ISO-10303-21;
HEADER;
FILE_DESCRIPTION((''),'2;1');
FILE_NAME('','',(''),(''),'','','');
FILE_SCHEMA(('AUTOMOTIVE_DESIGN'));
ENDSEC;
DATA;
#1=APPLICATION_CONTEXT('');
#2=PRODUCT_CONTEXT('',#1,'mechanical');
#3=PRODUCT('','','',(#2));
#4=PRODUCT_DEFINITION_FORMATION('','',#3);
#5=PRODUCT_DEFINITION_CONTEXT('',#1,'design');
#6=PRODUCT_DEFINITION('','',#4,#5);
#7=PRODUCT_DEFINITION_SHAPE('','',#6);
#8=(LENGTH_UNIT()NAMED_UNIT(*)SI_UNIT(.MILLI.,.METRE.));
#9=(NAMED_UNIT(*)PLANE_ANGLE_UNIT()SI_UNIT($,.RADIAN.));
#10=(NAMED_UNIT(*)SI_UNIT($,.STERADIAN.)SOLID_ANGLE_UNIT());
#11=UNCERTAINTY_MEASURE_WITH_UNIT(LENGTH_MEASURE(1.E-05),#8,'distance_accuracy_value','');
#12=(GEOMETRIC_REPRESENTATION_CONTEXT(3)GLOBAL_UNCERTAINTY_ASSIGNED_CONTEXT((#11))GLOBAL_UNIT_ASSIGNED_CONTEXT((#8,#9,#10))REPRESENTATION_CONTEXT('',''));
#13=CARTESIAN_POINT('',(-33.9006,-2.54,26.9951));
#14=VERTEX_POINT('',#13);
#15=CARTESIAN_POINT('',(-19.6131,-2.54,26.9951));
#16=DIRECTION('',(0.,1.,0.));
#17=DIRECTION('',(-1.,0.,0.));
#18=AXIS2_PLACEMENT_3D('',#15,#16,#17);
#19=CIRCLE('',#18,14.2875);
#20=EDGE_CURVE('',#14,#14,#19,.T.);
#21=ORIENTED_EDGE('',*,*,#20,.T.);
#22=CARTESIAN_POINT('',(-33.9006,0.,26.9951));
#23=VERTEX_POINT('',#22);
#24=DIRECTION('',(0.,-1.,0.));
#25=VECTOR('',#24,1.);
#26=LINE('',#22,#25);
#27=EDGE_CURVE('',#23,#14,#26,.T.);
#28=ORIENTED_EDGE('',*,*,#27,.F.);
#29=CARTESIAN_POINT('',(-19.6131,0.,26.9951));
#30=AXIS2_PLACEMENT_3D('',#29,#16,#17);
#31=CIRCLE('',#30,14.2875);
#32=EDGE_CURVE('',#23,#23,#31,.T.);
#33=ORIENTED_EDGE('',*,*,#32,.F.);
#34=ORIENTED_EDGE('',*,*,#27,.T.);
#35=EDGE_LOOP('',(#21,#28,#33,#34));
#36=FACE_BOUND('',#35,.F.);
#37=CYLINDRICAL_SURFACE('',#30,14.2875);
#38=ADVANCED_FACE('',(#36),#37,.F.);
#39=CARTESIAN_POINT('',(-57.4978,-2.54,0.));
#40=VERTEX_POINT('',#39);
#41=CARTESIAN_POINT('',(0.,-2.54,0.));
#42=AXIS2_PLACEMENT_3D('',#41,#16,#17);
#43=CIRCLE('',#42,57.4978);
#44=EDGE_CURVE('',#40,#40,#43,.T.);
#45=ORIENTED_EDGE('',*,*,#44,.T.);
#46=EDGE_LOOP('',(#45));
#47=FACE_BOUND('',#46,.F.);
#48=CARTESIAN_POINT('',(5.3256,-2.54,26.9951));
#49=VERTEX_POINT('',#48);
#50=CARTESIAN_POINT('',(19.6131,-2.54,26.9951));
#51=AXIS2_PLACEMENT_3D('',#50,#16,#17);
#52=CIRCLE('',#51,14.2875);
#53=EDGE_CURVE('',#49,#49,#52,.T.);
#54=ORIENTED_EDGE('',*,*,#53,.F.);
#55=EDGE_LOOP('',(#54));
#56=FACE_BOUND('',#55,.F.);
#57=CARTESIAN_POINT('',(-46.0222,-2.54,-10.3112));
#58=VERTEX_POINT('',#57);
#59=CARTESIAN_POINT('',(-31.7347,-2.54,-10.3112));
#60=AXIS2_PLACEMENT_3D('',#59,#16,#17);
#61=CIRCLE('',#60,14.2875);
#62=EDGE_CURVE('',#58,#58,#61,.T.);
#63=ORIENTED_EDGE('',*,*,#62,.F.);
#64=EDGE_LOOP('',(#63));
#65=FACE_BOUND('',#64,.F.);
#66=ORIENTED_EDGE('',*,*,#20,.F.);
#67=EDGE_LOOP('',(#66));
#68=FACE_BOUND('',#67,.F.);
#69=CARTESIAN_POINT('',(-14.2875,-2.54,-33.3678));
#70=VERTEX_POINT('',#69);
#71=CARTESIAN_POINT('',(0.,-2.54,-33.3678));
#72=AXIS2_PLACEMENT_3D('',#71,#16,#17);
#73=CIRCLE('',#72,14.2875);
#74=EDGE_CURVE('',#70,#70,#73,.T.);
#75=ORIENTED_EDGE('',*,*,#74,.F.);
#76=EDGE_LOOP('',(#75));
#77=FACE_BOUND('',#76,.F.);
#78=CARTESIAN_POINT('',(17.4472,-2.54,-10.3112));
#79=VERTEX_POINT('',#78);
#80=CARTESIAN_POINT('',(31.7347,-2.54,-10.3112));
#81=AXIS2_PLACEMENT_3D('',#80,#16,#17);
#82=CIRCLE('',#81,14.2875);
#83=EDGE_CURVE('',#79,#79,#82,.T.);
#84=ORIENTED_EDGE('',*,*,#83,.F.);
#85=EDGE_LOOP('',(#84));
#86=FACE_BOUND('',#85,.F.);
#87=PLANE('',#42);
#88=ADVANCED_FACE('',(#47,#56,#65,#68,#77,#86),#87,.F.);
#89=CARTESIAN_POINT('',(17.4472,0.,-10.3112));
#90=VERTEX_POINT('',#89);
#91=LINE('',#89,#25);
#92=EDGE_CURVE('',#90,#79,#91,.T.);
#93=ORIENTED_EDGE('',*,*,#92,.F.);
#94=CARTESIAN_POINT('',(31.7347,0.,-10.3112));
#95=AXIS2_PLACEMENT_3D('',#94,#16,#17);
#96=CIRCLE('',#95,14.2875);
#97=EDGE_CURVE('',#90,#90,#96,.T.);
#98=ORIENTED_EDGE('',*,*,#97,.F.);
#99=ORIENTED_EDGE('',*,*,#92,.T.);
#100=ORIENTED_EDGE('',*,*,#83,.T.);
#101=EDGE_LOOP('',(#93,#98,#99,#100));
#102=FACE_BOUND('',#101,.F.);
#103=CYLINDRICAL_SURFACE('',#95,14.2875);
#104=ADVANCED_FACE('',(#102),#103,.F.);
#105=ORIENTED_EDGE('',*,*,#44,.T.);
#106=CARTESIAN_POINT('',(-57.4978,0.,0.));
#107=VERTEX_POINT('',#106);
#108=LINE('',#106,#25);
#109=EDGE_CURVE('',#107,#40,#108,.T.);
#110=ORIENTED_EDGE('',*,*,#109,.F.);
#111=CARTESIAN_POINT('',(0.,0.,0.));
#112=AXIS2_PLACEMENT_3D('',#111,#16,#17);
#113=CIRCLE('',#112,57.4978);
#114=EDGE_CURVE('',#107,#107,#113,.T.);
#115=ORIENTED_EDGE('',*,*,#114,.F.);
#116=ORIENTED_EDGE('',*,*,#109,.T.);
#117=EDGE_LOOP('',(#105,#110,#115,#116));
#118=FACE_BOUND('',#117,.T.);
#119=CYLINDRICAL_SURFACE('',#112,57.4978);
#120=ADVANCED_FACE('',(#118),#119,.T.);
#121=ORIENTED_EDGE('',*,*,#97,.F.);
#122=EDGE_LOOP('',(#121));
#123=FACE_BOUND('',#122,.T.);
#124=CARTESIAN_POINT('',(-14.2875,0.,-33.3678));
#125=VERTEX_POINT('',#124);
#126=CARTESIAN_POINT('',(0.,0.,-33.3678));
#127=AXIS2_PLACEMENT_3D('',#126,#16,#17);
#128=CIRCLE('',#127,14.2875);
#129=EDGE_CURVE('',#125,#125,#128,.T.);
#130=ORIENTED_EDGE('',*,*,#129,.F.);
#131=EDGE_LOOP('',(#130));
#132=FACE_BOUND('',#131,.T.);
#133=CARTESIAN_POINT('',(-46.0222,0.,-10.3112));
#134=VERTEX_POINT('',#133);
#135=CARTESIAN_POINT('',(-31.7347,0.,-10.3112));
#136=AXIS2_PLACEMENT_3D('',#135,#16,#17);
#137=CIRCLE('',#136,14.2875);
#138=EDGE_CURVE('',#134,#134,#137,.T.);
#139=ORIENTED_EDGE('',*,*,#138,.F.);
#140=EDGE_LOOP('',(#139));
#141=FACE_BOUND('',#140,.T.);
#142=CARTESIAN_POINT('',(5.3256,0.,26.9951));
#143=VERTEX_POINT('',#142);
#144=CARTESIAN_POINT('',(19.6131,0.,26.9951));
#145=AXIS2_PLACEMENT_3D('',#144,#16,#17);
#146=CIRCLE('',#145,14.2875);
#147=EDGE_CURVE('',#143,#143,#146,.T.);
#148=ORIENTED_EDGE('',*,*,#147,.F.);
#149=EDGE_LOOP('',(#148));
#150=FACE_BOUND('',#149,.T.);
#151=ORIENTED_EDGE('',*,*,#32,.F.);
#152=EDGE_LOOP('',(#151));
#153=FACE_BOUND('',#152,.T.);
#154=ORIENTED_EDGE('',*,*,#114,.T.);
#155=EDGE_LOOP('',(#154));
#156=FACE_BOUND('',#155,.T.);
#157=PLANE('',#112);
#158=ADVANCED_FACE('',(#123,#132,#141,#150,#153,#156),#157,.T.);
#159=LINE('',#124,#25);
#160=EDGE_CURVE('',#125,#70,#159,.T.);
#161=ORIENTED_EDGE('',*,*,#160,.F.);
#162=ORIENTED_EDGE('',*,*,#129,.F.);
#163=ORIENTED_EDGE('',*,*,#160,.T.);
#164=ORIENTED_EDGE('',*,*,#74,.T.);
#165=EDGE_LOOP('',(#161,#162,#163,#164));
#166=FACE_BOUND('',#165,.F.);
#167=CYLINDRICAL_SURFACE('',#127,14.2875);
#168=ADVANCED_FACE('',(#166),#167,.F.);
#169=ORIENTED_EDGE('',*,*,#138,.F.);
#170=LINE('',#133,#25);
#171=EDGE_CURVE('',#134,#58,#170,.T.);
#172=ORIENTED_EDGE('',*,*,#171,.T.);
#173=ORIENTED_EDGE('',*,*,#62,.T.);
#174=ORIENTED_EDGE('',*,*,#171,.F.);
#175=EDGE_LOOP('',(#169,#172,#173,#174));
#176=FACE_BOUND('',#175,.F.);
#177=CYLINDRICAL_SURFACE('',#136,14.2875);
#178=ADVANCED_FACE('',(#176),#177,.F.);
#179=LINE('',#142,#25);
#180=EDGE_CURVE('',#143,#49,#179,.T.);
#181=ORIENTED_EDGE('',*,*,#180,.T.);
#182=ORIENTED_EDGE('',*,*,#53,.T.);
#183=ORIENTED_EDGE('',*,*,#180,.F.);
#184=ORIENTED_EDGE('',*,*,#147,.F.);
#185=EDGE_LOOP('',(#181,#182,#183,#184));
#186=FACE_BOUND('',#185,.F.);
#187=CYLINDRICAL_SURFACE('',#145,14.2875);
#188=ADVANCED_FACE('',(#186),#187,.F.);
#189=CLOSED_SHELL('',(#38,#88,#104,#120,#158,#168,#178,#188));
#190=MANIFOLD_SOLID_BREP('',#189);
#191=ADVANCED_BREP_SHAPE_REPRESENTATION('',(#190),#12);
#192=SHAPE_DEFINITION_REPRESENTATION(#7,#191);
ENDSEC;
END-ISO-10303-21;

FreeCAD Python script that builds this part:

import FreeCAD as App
import Part
import Sketcher
Q = App.Units.Quantity

doc = App.newDocument("Part")
params = doc.addObject("Spreadsheet::Sheet", "Params")
for row, (alias, value) in enumerate([
    ("sketch1_diameter", "1.125 in"),
    ("pad1_length", "0.1 in"),
], start=1):
    params.set(f"A{row}", alias)
    params.set(f"B{row}", "=" + value)
    params.setAlias(f"B{row}", alias)

body = doc.addObject("PartDesign::Body", "Body")

# Sketch on XZ plane
sketch1 = body.newObject("Sketcher::SketchObject", "Sketch")
sketch1.AttachmentSupport = (doc.getObject("XZ_Plane"), [""])
sketch1.MapMode = "FlatFace"
sketch1.addGeometry(Part.Circle(App.Vector(0, 0, 0), App.Vector(0, 0, 1), 57), False)
sketch1.addGeometry(Part.Circle(App.Vector(32, -10, 0), App.Vector(0, 0, 1), 14), False)
sketch1.addGeometry(Part.Circle(App.Vector(0, -33, 0), App.Vector(0, 0, 1), 14), False)
sketch1.addGeometry(Part.Circle(App.Vector(-32, -10, 0), App.Vector(0, 0, 1), 14), False)
sketch1.addGeometry(Part.Circle(App.Vector(20, 27, 0), App.Vector(0, 0, 1), 14), False)
sketch1.addGeometry(Part.Circle(App.Vector(-20, 27, 0), App.Vector(0, 0, 1), 14), False)
sketch1.addConstraint(Sketcher.Constraint("Coincident", 0, 3, -1, 1))
sketch1.addConstraint(Sketcher.Constraint("Equal", 1, 2))
sketch1.addConstraint(Sketcher.Constraint("Equal", 2, 3))
sketch1.addConstraint(Sketcher.Constraint("Equal", 3, 4))
sketch1.addConstraint(Sketcher.Constraint("Equal", 4, 5))
sketch1.addConstraint(Sketcher.Constraint("Symmetric", 1, 3, 3, 3, -2))
sketch1.addConstraint(Sketcher.Constraint("Symmetric", 4, 3, 5, 3, -2))
sketch1.addConstraint(Sketcher.Constraint("PointOnObject", 2, 3, -2))
sketch1.addConstraint(Sketcher.Constraint("Diameter", 1, Q("1.125 in")))
sketch1.addConstraint(Sketcher.Constraint("Diameter", 0, Q("114.9956 mm")))
sketch1.addConstraint(Sketcher.Constraint("DistanceY", 1, 3, 4, 3, Q("1.468752 in")))
sketch1.addConstraint(Sketcher.Constraint("DistanceX", -1, 1, 1, 3, Q("1.2494 in")))
sketch1.addConstraint(Sketcher.Constraint("DistanceY", 2, 3, -1, 1, Q("1.3137 in")))
sketch1.addConstraint(Sketcher.Constraint("DistanceY", -1, 1, 4, 3, Q("1.0628 in")))
sketch1.addConstraint(Sketcher.Constraint("DistanceX", -1, 1, 4, 3, Q("19.613 mm")))
sketch1.setExpression("Constraints[8]", "Params.sketch1_diameter")
pad1 = body.newObject("PartDesign::Pad", "Pad")
pad1.Profile = sketch1
pad1.setExpression("Length", "Params.pad1_length")

doc.recompute()
